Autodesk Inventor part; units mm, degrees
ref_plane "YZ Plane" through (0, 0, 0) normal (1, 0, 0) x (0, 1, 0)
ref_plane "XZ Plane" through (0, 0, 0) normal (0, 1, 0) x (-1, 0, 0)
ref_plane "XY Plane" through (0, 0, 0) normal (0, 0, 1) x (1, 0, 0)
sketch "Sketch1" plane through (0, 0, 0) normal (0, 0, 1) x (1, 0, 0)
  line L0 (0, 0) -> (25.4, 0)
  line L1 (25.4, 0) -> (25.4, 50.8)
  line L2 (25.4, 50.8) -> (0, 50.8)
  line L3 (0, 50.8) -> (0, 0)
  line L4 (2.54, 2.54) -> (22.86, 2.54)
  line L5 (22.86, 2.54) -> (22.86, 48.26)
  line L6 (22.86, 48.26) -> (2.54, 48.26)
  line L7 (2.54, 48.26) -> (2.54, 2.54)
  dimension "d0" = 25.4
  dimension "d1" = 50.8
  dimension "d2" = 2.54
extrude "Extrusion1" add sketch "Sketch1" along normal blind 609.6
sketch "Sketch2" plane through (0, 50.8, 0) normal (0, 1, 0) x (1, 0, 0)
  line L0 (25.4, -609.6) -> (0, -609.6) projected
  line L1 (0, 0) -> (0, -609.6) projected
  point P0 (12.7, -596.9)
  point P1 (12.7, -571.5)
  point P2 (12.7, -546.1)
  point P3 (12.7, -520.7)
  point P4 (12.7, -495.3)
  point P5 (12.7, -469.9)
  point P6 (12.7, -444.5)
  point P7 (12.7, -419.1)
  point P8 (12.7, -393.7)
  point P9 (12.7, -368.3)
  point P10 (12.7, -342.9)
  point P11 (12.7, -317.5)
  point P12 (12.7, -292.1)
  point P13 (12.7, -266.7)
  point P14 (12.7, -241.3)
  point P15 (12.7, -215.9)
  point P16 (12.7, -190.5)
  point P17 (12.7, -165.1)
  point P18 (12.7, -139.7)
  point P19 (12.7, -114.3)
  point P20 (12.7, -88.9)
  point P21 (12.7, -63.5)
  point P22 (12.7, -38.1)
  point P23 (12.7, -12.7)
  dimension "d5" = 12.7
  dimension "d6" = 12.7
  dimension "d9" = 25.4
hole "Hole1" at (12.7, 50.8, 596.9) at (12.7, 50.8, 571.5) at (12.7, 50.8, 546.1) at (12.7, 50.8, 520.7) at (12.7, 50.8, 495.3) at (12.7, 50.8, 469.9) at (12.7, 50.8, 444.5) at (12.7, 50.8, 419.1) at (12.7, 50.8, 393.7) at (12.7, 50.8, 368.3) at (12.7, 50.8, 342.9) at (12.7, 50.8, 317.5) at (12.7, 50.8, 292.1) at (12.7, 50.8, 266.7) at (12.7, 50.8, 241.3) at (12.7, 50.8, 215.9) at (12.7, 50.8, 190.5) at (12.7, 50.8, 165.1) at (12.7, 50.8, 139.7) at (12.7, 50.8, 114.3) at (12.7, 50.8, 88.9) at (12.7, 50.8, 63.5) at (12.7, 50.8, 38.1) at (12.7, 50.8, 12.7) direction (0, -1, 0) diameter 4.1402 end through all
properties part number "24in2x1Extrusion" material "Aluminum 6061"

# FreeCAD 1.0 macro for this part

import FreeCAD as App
import Part
import Sketcher

V = App.Vector
Q = App.Units.Quantity

doc = App.newDocument("Part")
body = doc.addObject("PartDesign::Body", "Body")

sketch1 = body.newObject("Sketcher::SketchObject", "Sketch")
sketch1.AttachmentSupport = (doc.getObject("XY_Plane"), [""])
sketch1.MapMode = "FlatFace"
sketch1.addGeometry([
    Part.LineSegment(V(0, 50.8, 0), V(0, 0, 0)),
    Part.LineSegment(V(0, 0, 0), V(25.4, 0, 0)),
    Part.LineSegment(V(25.4, 0, 0), V(25.4, 50.8, 0)),
    Part.LineSegment(V(25.4, 50.8, 0), V(0, 50.8, 0)),
    Part.LineSegment(V(22.86, 2.54, 0), V(2.54, 2.54, 0)),
    Part.LineSegment(V(2.54, 2.54, 0), V(2.54, 48.26, 0)),
    Part.LineSegment(V(2.54, 48.26, 0), V(22.86, 48.26, 0)),
    Part.LineSegment(V(22.86, 48.26, 0), V(22.86, 2.54, 0)),
], False)
sketch1.addConstraint([
    Sketcher.Constraint("Coincident", 0, 2, 1, 1),
    Sketcher.Constraint("Coincident", 1, 2, 2, 1),
    Sketcher.Constraint("Coincident", 2, 2, 3, 1),
    Sketcher.Constraint("Coincident", 3, 2, 0, 1),
    Sketcher.Constraint("Coincident", 4, 2, 5, 1),
    Sketcher.Constraint("Coincident", 5, 2, 6, 1),
    Sketcher.Constraint("Coincident", 6, 2, 7, 1),
    Sketcher.Constraint("Coincident", 7, 2, 4, 1),
    Sketcher.Constraint("Vertical", 0),
    Sketcher.Constraint("Horizontal", 1),
    Sketcher.Constraint("Vertical", 2),
    Sketcher.Constraint("Horizontal", 3),
    Sketcher.Constraint("Horizontal", 4),
    Sketcher.Constraint("Vertical", 5),
    Sketcher.Constraint("Horizontal", 6),
    Sketcher.Constraint("Vertical", 7),
    Sketcher.Constraint("Coincident", 0, 2, -1, 1),
    Sketcher.Constraint("DistanceX", 1, 1, 1, 2, Q("1 in")),
    Sketcher.Constraint("DistanceY", 0, 2, 0, 1, Q("2 in")),
    Sketcher.Constraint("DistanceX", -1, 1, 4, 2, Q("0.1 in")),
    Sketcher.Constraint("DistanceY", -1, 1, 4, 2, Q("0.1 in")),
    Sketcher.Constraint("DistanceY", 5, 2, 3, 2, Q("0.1 in")),
    Sketcher.Constraint("DistanceX", 6, 2, 2, 2, Q("0.1 in")),
])
pad1 = body.newObject("PartDesign::Pad", "Pad")
pad1.Profile = sketch1
pad1.Length = Q("24 in")

sketch2 = body.newObject("Sketcher::SketchObject", "Sketch001")
sketch2.AttachmentSupport = (doc.getObject("XZ_Plane"), [""])
sketch2.MapMode = "FlatFace"
sketch2.AttachmentOffset = App.Placement(V(0, 0, -2 * 25.4), App.Rotation())
sketch2.addGeometry([
    Part.Circle(V(12.7, 596.9, 0), V(0, 0, 1), 2.0701),
    Part.Circle(V(12.7, 571.5, 0), V(0, 0, 1), 2.0701),
    Part.Circle(V(12.7, 546.1, 0), V(0, 0, 1), 2.0701),
    Part.Circle(V(12.7, 520.7, 0), V(0, 0, 1), 2.0701),
    Part.Circle(V(12.7, 495.3, 0), V(0, 0, 1), 2.0701),
    Part.Circle(V(12.7, 469.9, 0), V(0, 0, 1), 2.0701),
    Part.Circle(V(12.7, 444.5, 0), V(0, 0, 1), 2.0701),
    Part.Circle(V(12.7, 419.1, 0), V(0, 0, 1), 2.0701),
    Part.Circle(V(12.7, 393.7, 0), V(0, 0, 1), 2.0701),
    Part.Circle(V(12.7, 368.3, 0), V(0, 0, 1), 2.0701),
    Part.Circle(V(12.7, 342.9, 0), V(0, 0, 1), 2.0701),
    Part.Circle(V(12.7, 317.5, 0), V(0, 0, 1), 2.0701),
    Part.Circle(V(12.7, 292.1, 0), V(0, 0, 1), 2.0701),
    Part.Circle(V(12.7, 266.7, 0), V(0, 0, 1), 2.0701),
    Part.Circle(V(12.7, 241.3, 0), V(0, 0, 1), 2.0701),
    Part.Circle(V(12.7, 215.9, 0), V(0, 0, 1), 2.0701),
    Part.Circle(V(12.7, 190.5, 0), V(0, 0, 1), 2.0701),
    Part.Circle(V(12.7, 165.1, 0), V(0, 0, 1), 2.0701),
    Part.Circle(V(12.7, 139.7, 0), V(0, 0, 1), 2.0701),
    Part.Circle(V(12.7, 114.3, 0), V(0, 0, 1), 2.0701),
    Part.Circle(V(12.7, 88.9, 0), V(0, 0, 1), 2.0701),
    Part.Circle(V(12.7, 63.5, 0), V(0, 0, 1), 2.0701),
    Part.Circle(V(12.7, 38.1, 0), V(0, 0, 1), 2.0701),
    Part.Circle(V(12.7, 12.7, 0), V(0, 0, 1), 2.0701),
], False)
sketch2.addConstraint([
    Sketcher.Constraint("Equal", 0, 1),
    Sketcher.Constraint("Equal", 1, 2),
    Sketcher.Constraint("Equal", 2, 3),
    Sketcher.Constraint("Equal", 3, 4),
    Sketcher.Constraint("Equal", 4, 5),
    Sketcher.Constraint("Equal", 5, 6),
    Sketcher.Constraint("Equal", 6, 7),
    Sketcher.Constraint("Equal", 7, 8),
    Sketcher.Constraint("Equal", 8, 9),
    Sketcher.Constraint("Equal", 9, 10),
    Sketcher.Constraint("Equal", 10, 11),
    Sketcher.Constraint("Equal", 11, 12),
    Sketcher.Constraint("Equal", 12, 13),
    Sketcher.Constraint("Equal", 13, 14),
    Sketcher.Constraint("Equal", 14, 15),
    Sketcher.Constraint("Equal", 15, 16),
    Sketcher.Constraint("Equal", 16, 17),
    Sketcher.Constraint("Equal", 17, 18),
    Sketcher.Constraint("Equal", 18, 19),
    Sketcher.Constraint("Equal", 19, 20),
    Sketcher.Constraint("Equal", 20, 21),
    Sketcher.Constraint("Equal", 21, 22),
    Sketcher.Constraint("Equal", 22, 23),
    Sketcher.Constraint("Vertical", 0, 3, 1, 3),
    Sketcher.Constraint("Vertical", 1, 3, 2, 3),
    Sketcher.Constraint("Vertical", 2, 3, 3, 3),
    Sketcher.Constraint("Vertical", 3, 3, 4, 3),
    Sketcher.Constraint("Vertical", 4, 3, 5, 3),
    Sketcher.Constraint("Vertical", 5, 3, 6, 3),
    Sketcher.Constraint("Vertical", 6, 3, 7, 3),
    Sketcher.Constraint("Vertical", 7, 3, 8, 3),
    Sketcher.Constraint("Vertical", 8, 3, 9, 3),
    Sketcher.Constraint("Vertical", 9, 3, 10, 3),
    Sketcher.Constraint("Vertical", 10, 3, 11, 3),
    Sketcher.Constraint("Vertical", 11, 3, 12, 3),
    Sketcher.Constraint("Vertical", 12, 3, 13, 3),
    Sketcher.Constraint("Vertical", 13, 3, 14, 3),
    Sketcher.Constraint("Vertical", 14, 3, 15, 3),
    Sketcher.Constraint("Vertical", 15, 3, 16, 3),
    Sketcher.Constraint("Vertical", 16, 3, 17, 3),
    Sketcher.Constraint("Vertical", 17, 3, 18, 3),
    Sketcher.Constraint("Vertical", 18, 3, 19, 3),
    Sketcher.Constraint("Vertical", 19, 3, 20, 3),
    Sketcher.Constraint("Vertical", 20, 3, 21, 3),
    Sketcher.Constraint("Vertical", 21, 3, 22, 3),
    Sketcher.Constraint("Vertical", 22, 3, 23, 3),
    Sketcher.Constraint("Diameter", 0, Q("0.163 in")),
    Sketcher.Constraint("DistanceY", 1, 3, 0, 3, Q("1 in")),
    Sketcher.Constraint("DistanceY", 2, 3, 1, 3, Q("1 in")),
    Sketcher.Constraint("DistanceY", 3, 3, 2, 3, Q("1 in")),
    Sketcher.Constraint("DistanceY", 4, 3, 3, 3, Q("1 in")),
    Sketcher.Constraint("DistanceY", 5, 3, 4, 3, Q("1 in")),
    Sketcher.Constraint("DistanceY", 6, 3, 5, 3, Q("1 in")),
    Sketcher.Constraint("DistanceY", 7, 3, 6, 3, Q("1 in")),
    Sketcher.Constraint("DistanceY", 8, 3, 7, 3, Q("1 in")),
    Sketcher.Constraint("DistanceY", 9, 3, 8, 3, Q("1 in")),
    Sketcher.Constraint("DistanceY", 10, 3, 9, 3, Q("1 in")),
    Sketcher.Constraint("DistanceY", 11, 3, 10, 3, Q("1 in")),
    Sketcher.Constraint("DistanceY", 12, 3, 11, 3, Q("1 in")),
    Sketcher.Constraint("DistanceY", 13, 3, 12, 3, Q("1 in")),
    Sketcher.Constraint("DistanceY", 14, 3, 13, 3, Q("1 in")),
    Sketcher.Constraint("DistanceY", 15, 3, 14, 3, Q("1 in")),
    Sketcher.Constraint("DistanceY", 16, 3, 15, 3, Q("1 in")),
    Sketcher.Constraint("DistanceY", 17, 3, 16, 3, Q("1 in")),
    Sketcher.Constraint("DistanceY", 18, 3, 17, 3, Q("1 in")),
    Sketcher.Constraint("DistanceY", 19, 3, 18, 3, Q("1 in")),
    Sketcher.Constraint("DistanceY", 20, 3, 19, 3, Q("1 in")),
    Sketcher.Constraint("DistanceY", 21, 3, 20, 3, Q("1 in")),
    Sketcher.Constraint("DistanceY", 22, 3, 21, 3, Q("1 in")),
    Sketcher.Constraint("DistanceY", 23, 3, 22, 3, Q("1 in")),
    Sketcher.Constraint("DistanceX", -1, 1, 0, 3, Q("0.5 in")),
    Sketcher.Constraint("DistanceY", -1, 1, 0, 3, Q("23.5 in")),
])
doc.recompute()
hole = body.newObject("PartDesign::Hole", "Hole")
hole.Profile = sketch2
hole.ThreadType = "None"
hole.Diameter = Q("0.163 in")
hole.DepthType = "ThroughAll"
hole.Reversed = True

doc.recompute()
